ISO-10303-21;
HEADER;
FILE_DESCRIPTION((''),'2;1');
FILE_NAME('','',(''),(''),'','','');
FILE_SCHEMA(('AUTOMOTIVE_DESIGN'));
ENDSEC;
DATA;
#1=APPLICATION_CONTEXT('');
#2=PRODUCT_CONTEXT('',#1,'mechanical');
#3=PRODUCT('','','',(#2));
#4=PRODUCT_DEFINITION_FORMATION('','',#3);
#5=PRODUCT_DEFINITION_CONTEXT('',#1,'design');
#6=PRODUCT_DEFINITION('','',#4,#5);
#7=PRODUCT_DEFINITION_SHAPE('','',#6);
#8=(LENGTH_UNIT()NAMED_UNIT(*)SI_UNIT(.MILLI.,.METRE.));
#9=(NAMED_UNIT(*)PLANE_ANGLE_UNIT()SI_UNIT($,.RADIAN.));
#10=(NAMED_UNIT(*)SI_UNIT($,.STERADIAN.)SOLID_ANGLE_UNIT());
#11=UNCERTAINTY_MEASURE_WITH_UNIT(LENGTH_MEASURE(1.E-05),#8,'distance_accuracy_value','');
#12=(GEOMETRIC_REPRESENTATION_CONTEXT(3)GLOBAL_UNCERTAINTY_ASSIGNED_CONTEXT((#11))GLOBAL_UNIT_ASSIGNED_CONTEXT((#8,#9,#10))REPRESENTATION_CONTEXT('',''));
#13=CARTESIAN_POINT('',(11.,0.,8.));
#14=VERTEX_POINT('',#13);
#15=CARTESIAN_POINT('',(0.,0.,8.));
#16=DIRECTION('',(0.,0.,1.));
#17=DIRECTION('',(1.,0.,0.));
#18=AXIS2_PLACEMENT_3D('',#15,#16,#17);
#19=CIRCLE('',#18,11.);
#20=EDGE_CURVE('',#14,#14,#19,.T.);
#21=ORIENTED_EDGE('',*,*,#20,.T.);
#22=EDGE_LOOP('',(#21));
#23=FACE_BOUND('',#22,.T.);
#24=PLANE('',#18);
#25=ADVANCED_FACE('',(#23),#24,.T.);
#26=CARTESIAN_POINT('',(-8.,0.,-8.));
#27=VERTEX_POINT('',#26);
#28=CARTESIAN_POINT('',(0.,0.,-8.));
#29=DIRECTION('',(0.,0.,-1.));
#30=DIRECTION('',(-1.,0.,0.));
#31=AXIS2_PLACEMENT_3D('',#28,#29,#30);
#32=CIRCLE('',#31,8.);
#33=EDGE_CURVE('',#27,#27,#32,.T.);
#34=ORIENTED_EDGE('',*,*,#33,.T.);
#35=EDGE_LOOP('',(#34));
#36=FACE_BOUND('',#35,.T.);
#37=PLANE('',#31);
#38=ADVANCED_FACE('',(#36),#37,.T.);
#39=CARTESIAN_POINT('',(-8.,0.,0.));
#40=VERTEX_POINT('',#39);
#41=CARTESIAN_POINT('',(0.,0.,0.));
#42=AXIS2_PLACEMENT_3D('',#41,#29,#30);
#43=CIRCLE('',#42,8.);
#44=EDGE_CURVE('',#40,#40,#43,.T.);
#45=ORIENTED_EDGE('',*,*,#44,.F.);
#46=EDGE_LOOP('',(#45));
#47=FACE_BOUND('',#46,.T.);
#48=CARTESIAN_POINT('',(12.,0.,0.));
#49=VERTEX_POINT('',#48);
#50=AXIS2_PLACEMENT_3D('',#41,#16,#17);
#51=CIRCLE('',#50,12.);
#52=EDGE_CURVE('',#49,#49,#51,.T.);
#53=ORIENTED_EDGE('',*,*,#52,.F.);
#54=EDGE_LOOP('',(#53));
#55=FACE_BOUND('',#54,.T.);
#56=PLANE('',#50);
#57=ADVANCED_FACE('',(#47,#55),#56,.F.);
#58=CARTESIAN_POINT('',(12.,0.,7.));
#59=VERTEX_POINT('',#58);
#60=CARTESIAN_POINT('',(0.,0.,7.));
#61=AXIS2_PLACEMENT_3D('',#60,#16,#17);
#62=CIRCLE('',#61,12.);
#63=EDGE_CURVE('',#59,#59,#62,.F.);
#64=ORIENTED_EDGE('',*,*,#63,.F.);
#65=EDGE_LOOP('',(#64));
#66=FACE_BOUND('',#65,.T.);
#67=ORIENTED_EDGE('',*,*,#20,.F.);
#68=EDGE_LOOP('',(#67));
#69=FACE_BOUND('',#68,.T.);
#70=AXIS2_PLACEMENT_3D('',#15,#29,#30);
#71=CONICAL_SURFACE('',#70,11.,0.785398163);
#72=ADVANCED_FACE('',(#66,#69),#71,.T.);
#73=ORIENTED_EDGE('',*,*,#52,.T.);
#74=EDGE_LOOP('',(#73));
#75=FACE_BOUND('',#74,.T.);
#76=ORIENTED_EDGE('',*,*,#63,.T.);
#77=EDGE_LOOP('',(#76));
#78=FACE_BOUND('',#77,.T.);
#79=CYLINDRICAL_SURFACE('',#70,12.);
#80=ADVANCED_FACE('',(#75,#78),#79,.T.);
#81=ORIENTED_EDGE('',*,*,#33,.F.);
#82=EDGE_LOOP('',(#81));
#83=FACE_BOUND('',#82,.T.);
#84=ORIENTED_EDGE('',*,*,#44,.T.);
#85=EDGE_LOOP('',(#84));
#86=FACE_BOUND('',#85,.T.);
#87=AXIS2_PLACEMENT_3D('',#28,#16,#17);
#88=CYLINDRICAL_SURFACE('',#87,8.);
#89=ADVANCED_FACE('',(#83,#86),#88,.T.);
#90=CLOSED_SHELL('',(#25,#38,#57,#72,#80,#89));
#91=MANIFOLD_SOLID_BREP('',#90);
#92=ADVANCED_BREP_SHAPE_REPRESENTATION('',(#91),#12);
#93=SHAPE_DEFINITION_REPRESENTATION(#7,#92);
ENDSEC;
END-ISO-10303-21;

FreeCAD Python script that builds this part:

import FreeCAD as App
import Part
import Sketcher

V = App.Vector
Q = App.Units.Quantity


def edges_at(feature, points):
    """Names of the edges that pass closest to the given points."""
    edges = feature.Shape.Edges
    near = lambda p: min(range(len(edges)), key=lambda i: edges[i].distToShape(Part.Vertex(*p))[0])
    return sorted({f"Edge{near(p) + 1}" for p in points})

doc = App.newDocument("Part")
body = doc.addObject("PartDesign::Body", "Body")

# Sketch on XY plane
sketch1 = doc.addObject("Sketcher::SketchObject", "Sketch")
body.addObject(sketch1)
sketch1.AttachmentSupport = (doc.XY_Plane, [""])
sketch1.MapMode = "FlatFace"
sketch1.addGeometry(Part.Circle(V(0, 0, 0), V(0, 0, 1), 12), False)
sketch1.addConstraint(Sketcher.Constraint("Coincident", 0, 3, -1, 1))
sketch1.addConstraint(Sketcher.Constraint("Diameter", 0, Q("24 mm")))
pad1 = doc.addObject("PartDesign::Pad", "Pad")
body.addObject(pad1)
pad1.Profile = sketch1
pad1.Length = 8
doc.recompute()

chamfer = doc.addObject("PartDesign::Chamfer", "Chamfer")
body.addObject(chamfer)
chamfer.Base = (pad1, edges_at(pad1, [(-12, 0, 8)]))
chamfer.Size = 1

# Sketch on XY plane
sketch2 = doc.addObject("Sketcher::SketchObject", "Sketch001")
body.addObject(sketch2)
sketch2.AttachmentSupport = (doc.XY_Plane, [""])
sketch2.MapMode = "FlatFace"
sketch2.addGeometry(Part.Circle(V(0, 0, 0), V(0, 0, 1), 8), False)
sketch2.addConstraint(Sketcher.Constraint("Coincident", 0, 3, -1, 1))
sketch2.addConstraint(Sketcher.Constraint("Diameter", 0, Q("16 mm")))
pad2 = doc.addObject("PartDesign::Pad", "Pad001")
body.addObject(pad2)
pad2.Profile = sketch2
pad2.Length = 8
pad2.Reversed = True

doc.recompute()
